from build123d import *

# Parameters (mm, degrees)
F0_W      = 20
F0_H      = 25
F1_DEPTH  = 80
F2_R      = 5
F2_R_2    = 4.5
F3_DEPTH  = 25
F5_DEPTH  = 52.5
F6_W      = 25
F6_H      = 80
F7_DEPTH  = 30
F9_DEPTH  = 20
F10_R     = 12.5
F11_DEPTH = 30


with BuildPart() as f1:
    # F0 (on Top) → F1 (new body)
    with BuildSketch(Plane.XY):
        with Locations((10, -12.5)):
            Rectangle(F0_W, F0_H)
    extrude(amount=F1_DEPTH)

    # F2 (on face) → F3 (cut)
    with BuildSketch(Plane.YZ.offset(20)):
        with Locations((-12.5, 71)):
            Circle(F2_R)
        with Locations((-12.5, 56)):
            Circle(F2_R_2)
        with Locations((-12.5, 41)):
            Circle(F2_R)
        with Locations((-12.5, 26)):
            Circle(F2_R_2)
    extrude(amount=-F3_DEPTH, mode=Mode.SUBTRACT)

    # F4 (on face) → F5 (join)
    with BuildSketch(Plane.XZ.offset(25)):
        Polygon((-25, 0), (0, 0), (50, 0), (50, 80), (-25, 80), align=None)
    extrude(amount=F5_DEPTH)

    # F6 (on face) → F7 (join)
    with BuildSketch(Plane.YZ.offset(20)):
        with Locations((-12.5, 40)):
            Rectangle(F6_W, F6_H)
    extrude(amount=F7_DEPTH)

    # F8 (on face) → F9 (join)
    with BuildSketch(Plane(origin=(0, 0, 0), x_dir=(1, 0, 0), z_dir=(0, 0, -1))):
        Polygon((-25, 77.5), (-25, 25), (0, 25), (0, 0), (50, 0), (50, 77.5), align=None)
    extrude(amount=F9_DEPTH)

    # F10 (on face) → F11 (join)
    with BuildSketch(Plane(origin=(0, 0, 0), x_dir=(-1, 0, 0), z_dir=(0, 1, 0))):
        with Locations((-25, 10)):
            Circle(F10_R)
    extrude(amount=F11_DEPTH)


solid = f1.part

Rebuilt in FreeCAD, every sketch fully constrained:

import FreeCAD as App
import Part
import Sketcher

V = App.Vector


def add_polygon(sketch, points):
    """Adds a closed chain of lines whose ends are joined by coincident constraints."""
    first, n = sketch.GeometryCount, len(points)
    for a, b in zip(points, points[1:] + points[:1]):
        sketch.addGeometry(Part.LineSegment(App.Vector(*a, 0), App.Vector(*b, 0)), False)
    for i in range(n):
        sketch.addConstraint(Sketcher.Constraint("Coincident", first + i, 2, first + (i + 1) % n, 1))

doc = App.newDocument("Part")
body = doc.addObject("PartDesign::Body", "Body")

# Sketch on XY plane
sketch1 = body.newObject("Sketcher::SketchObject", "Sketch")
sketch1.AttachmentSupport = (doc.getObject("XY_Plane"), [""])
sketch1.MapMode = "FlatFace"
add_polygon(sketch1, [(0, 0), (0, -25), (20, -25), (20, 0)])  # lines 0-3
sketch1.addConstraint(Sketcher.Constraint("Vertical", 0))
sketch1.addConstraint(Sketcher.Constraint("Horizontal", 1))
sketch1.addConstraint(Sketcher.Constraint("Vertical", 2))
sketch1.addConstraint(Sketcher.Constraint("Horizontal", 3))
sketch1.addConstraint(Sketcher.Constraint("Coincident", 3, 2, -1, 1))
sketch1.addConstraint(Sketcher.Constraint("DistanceX", 1, 1, 1, 2, 20.0))
sketch1.addConstraint(Sketcher.Constraint("DistanceY", 0, 2, 0, 1, 25.0))
pad1 = body.newObject("PartDesign::Pad", "Pad")
pad1.Profile = sketch1
pad1.Length = 80

# Sketch on YZ plane
sketch2 = body.newObject("Sketcher::SketchObject", "Sketch001")
sketch2.AttachmentSupport = (doc.getObject("YZ_Plane"), [""])
sketch2.MapMode = "FlatFace"
sketch2.AttachmentOffset = App.Placement(V(0, 0, 20), App.Rotation())
sketch2.addGeometry(Part.Circle(V(-12.5, 71, 0), V(0, 0, 1), 5), False)
sketch2.addGeometry(Part.Circle(V(-12.5, 56, 0), V(0, 0, 1), 4.5), False)
sketch2.addGeometry(Part.Circle(V(-12.5, 41, 0), V(0, 0, 1), 5), False)
sketch2.addGeometry(Part.Circle(V(-12.5, 26, 0), V(0, 0, 1), 4.5), False)
sketch2.addConstraint(Sketcher.Constraint("Equal", 0, 2))
sketch2.addConstraint(Sketcher.Constraint("Equal", 1, 3))
sketch2.addConstraint(Sketcher.Constraint("Vertical", 0, 3, 1, 3))
sketch2.addConstraint(Sketcher.Constraint("Vertical", 1, 3, 2, 3))
sketch2.addConstraint(Sketcher.Constraint("Vertical", 2, 3, 3, 3))
sketch2.addConstraint(Sketcher.Constraint("Diameter", 0, 10.0))
sketch2.addConstraint(Sketcher.Constraint("Diameter", 1, 9.0))
sketch2.addConstraint(Sketcher.Constraint("DistanceY", -1, 1, 0, 3, 71.0))
sketch2.addConstraint(Sketcher.Constraint("DistanceY", -1, 1, 1, 3, 56.0))
sketch2.addConstraint(Sketcher.Constraint("DistanceY", -1, 1, 2, 3, 41.0))
sketch2.addConstraint(Sketcher.Constraint("DistanceY", -1, 1, 3, 3, 26.0))
sketch2.addConstraint(Sketcher.Constraint("DistanceX", 0, 3, -1, 1, 12.5))
pocket1 = body.newObject("PartDesign::Pocket", "Pocket")
pocket1.Profile = sketch2
pocket1.Length = 25

# Sketch on XZ plane
sketch3 = body.newObject("Sketcher::SketchObject", "Sketch002")
sketch3.AttachmentSupport = (doc.getObject("XZ_Plane"), [""])
sketch3.MapMode = "FlatFace"
sketch3.AttachmentOffset = App.Placement(V(0, 0, 25), App.Rotation())
add_polygon(sketch3, [(-25, 0), (50, 0), (50, 80), (-25, 80)])  # lines 0-3
sketch3.addConstraint(Sketcher.Constraint("Horizontal", 0))
sketch3.addConstraint(Sketcher.Constraint("Vertical", 1))
sketch3.addConstraint(Sketcher.Constraint("Horizontal", 2))
sketch3.addConstraint(Sketcher.Constraint("Vertical", 3))
sketch3.addConstraint(Sketcher.Constraint("PointOnObject", 0, 2, -1))
sketch3.addConstraint(Sketcher.Constraint("DistanceX", 0, 1, 0, 2, 75.0))
sketch3.addConstraint(Sketcher.Constraint("DistanceY", 1, 1, 1, 2, 80.0))
sketch3.addConstraint(Sketcher.Constraint("DistanceX", -1, 1, 0, 2, 50.0))
pad2 = body.newObject("PartDesign::Pad", "Pad001")
pad2.Profile = sketch3
pad2.Length = 52.5

# Sketch on YZ plane
sketch4 = body.newObject("Sketcher::SketchObject", "Sketch003")
sketch4.AttachmentSupport = (doc.getObject("YZ_Plane"), [""])
sketch4.MapMode = "FlatFace"
sketch4.AttachmentOffset = App.Placement(V(0, 0, 20), App.Rotation())
add_polygon(sketch4, [(-25, 80), (-25, 0), (0, 0), (0, 80)])  # lines 0-3
sketch4.addConstraint(Sketcher.Constraint("Vertical", 0))
sketch4.addConstraint(Sketcher.Constraint("Horizontal", 1))
sketch4.addConstraint(Sketcher.Constraint("Vertical", 2))
sketch4.addConstraint(Sketcher.Constraint("Horizontal", 3))
sketch4.addConstraint(Sketcher.Constraint("Coincident", 1, 2, -1, 1))
sketch4.addConstraint(Sketcher.Constraint("DistanceX", 1, 1, 1, 2, 25.0))
sketch4.addConstraint(Sketcher.Constraint("DistanceY", 0, 2, 0, 1, 80.0))
pad3 = body.newObject("PartDesign::Pad", "Pad002")
pad3.Profile = sketch4
pad3.Length = 30

# Sketch on XY plane
sketch5 = body.newObject("Sketcher::SketchObject", "Sketch004")
sketch5.AttachmentSupport = (doc.getObject("XY_Plane"), [""])
sketch5.MapMode = "FlatFace"
add_polygon(sketch5, [(-25, -78), (-25, -25), (0, -25), (0, 0), (50, 0), (50, -78)])  # lines 0-5
sketch5.addConstraint(Sketcher.Constraint("Vertical", 0))
sketch5.addConstraint(Sketcher.Constraint("Horizontal", 1))
sketch5.addConstraint(Sketcher.Constraint("Vertical", 2))
sketch5.addConstraint(Sketcher.Constraint("Horizontal", 3))
sketch5.addConstraint(Sketcher.Constraint("Vertical", 4))
sketch5.addConstraint(Sketcher.Constraint("Horizontal", 5))
sketch5.addConstraint(Sketcher.Constraint("Coincident", 2, 2, -1, 1))
sketch5.addConstraint(Sketcher.Constraint("Equal", 1, 2))
sketch5.addConstraint(Sketcher.Constraint("DistanceX", 1, 1, 1, 2, 25.0))
sketch5.addConstraint(Sketcher.Constraint("DistanceX", 3, 1, 3, 2, 50.0))
sketch5.addConstraint(Sketcher.Constraint("DistanceY", 0, 1, 0, 2, 52.5))
pad4 = body.newObject("PartDesign::Pad", "Pad003")
pad4.Profile = sketch5
pad4.Length = 20
pad4.Reversed = True

# Sketch on XZ plane
sketch6 = body.newObject("Sketcher::SketchObject", "Sketch005")
sketch6.AttachmentSupport = (doc.getObject("XZ_Plane"), [""])
sketch6.MapMode = "FlatFace"
sketch6.addGeometry(Part.Circle(V(25, 10, 0), V(0, 0, 1), 12), False)
sketch6.addConstraint(Sketcher.Constraint("Diameter", 0, 25.0))
sketch6.addConstraint(Sketcher.Constraint("DistanceX", -1, 1, 0, 3, 25.0))
sketch6.addConstraint(Sketcher.Constraint("DistanceY", -1, 1, 0, 3, 10.0))
pad5 = body.newObject("PartDesign::Pad", "Pad004")
pad5.Profile = sketch6
pad5.Length = 30
pad5.Reversed = True

doc.recompute()
